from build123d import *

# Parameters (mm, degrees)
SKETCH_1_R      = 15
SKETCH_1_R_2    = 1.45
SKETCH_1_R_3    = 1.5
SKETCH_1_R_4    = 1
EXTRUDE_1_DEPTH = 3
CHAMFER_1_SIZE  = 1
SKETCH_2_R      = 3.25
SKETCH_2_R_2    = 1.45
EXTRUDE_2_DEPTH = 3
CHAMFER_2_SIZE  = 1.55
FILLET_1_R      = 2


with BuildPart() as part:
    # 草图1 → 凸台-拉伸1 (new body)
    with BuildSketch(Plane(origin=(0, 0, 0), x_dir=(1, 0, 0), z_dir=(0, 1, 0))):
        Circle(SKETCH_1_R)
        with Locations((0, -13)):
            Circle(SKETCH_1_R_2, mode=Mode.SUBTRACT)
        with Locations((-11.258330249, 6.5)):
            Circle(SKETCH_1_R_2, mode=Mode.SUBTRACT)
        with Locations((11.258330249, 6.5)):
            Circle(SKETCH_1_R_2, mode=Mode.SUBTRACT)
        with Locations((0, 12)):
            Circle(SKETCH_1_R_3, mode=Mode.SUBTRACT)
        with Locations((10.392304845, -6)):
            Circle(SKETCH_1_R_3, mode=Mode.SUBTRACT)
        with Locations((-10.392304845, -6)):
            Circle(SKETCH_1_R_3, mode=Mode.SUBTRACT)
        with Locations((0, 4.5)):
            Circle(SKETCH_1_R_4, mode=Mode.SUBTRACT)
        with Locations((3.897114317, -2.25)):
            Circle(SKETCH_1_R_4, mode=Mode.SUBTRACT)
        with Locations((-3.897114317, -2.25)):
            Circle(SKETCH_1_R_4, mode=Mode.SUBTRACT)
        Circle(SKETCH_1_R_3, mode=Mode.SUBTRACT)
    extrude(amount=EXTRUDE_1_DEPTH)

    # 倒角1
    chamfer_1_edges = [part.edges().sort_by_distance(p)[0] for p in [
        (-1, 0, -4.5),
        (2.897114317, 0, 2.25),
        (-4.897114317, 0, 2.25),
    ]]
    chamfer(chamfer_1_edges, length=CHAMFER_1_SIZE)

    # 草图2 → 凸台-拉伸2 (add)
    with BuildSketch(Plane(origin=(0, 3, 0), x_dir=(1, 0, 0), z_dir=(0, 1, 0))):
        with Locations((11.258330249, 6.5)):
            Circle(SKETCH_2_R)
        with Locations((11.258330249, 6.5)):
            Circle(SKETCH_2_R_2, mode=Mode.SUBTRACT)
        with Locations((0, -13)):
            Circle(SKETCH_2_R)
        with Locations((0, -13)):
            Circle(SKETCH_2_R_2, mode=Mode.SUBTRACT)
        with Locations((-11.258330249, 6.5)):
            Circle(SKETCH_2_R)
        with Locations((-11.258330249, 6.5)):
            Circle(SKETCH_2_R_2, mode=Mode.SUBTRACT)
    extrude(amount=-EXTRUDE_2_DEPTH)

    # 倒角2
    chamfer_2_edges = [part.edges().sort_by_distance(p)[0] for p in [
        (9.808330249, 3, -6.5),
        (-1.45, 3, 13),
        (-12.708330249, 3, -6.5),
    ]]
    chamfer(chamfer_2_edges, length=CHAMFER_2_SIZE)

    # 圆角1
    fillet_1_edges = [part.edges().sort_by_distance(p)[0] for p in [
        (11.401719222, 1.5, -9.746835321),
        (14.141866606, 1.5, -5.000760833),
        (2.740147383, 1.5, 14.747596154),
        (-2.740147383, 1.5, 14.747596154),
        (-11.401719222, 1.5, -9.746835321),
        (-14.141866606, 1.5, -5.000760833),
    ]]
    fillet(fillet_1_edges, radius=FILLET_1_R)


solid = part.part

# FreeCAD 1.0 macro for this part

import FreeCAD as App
import Part
import Sketcher

V = App.Vector
Q = App.Units.Quantity


def edges_at(feature, points):
    """Names of the edges that pass closest to the given points."""
    edges = feature.Shape.Edges
    near = lambda p: min(range(len(edges)), key=lambda i: edges[i].distToShape(Part.Vertex(*p))[0])
    return sorted({f"Edge{near(p) + 1}" for p in points})

doc = App.newDocument("Part")
body = doc.addObject("PartDesign::Body", "Body")

# Sketch on XZ plane
sketch1 = body.newObject("Sketcher::SketchObject", "Sketch")
sketch1.AttachmentSupport = (doc.getObject("XZ_Plane"), [""])
sketch1.MapMode = "FlatFace"
sketch1.addGeometry([
    Part.Circle(V(0, 0, 0), V(0, 0, 1), 15),  # 0
    Part.Circle(V(-10.4, 6, 0), V(0, 0, 1), 1.5),  # 1
    Part.Circle(V(-3.9, 2.2, 0), V(0, 0, 1), 1),  # 2
    Part.Circle(V(0, 13, 0), V(0, 0, 1), 1.4),  # 3
    Part.Circle(V(3.9, 2.2, 0), V(0, 0, 1), 1),  # 4
    Part.Circle(V(10.4, 6, 0), V(0, 0, 1), 1.5),  # 5
    Part.Circle(V(-11.3, -6.5, 0), V(0, 0, 1), 1.4),  # 6
    Part.Circle(V(0, 0, 0), V(0, 0, 1), 1.5),  # 7
    Part.Circle(V(0, -4.5, 0), V(0, 0, 1), 1),  # 8
    Part.Circle(V(11.3, -6.5, 0), V(0, 0, 1), 1.4),  # 9
    Part.Circle(V(0, -12, 0), V(0, 0, 1), 1.5),  # 10
], False)
sketch1.addConstraint([
    Sketcher.Constraint("Coincident", 0, 3, -1, 1),
    Sketcher.Constraint("Coincident", 7, 3, -1, 1),
    Sketcher.Constraint("Equal", 2, 4),
    Sketcher.Constraint("Equal", 1, 5),
    Sketcher.Constraint("Equal", 3, 6),
    Sketcher.Constraint("Equal", 5, 7),
    Sketcher.Constraint("Equal", 4, 8),
    Sketcher.Constraint("Equal", 6, 9),
    Sketcher.Constraint("Equal", 7, 10),
    Sketcher.Constraint("Symmetric", 2, 3, 4, 3, -2),
    Sketcher.Constraint("Symmetric", 1, 3, 5, 3, -2),
    Sketcher.Constraint("Symmetric", 6, 3, 9, 3, -2),
    Sketcher.Constraint("PointOnObject", 3, 3, -2),
    Sketcher.Constraint("PointOnObject", 8, 3, -2),
    Sketcher.Constraint("PointOnObject", 10, 3, -2),
    Sketcher.Constraint("Diameter", 0, Q("30 mm")),
    Sketcher.Constraint("Diameter", 1, Q("3 mm")),
    Sketcher.Constraint("Diameter", 2, Q("2 mm")),
    Sketcher.Constraint("Diameter", 3, Q("2.9 mm")),
    Sketcher.Constraint("DistanceY", -1, 1, 1, 3, Q("6 mm")),
    Sketcher.Constraint("DistanceY", -1, 1, 3, 3, Q("13 mm")),
    Sketcher.Constraint("DistanceY", 10, 3, -1, 1, Q("12 mm")),
    Sketcher.Constraint("DistanceY", 6, 3, 8, 3, Q("2 mm")),
    Sketcher.Constraint("DistanceY", 6, 3, -1, 1, Q("6.5 mm")),
    Sketcher.Constraint("DistanceY", -1, 1, 2, 3, Q("2.25 mm")),
    Sketcher.Constraint("DistanceX", 6, 3, -1, 1, Q("11.25833 mm")),
    Sketcher.Constraint("DistanceX", 1, 3, 2, 3, Q("6.495191 mm")),
    Sketcher.Constraint("DistanceX", 2, 3, 4, 3, Q("7.794229 mm")),
])
pad1 = body.newObject("PartDesign::Pad", "Pad")
pad1.Profile = sketch1
pad1.Length = 3
pad1.Reversed = True
doc.recompute()

chamfer = body.newObject("PartDesign::Chamfer", "Chamfer")
chamfer.Base = (pad1, edges_at(pad1, [(-1, 0, -4.5), (2.897, 0, 2.25), (-4.897, 0, 2.25)]))
chamfer.Size = 1

# Sketch on XZ plane
sketch2 = body.newObject("Sketcher::SketchObject", "Sketch001")
sketch2.AttachmentSupport = (doc.getObject("XZ_Plane"), [""])
sketch2.MapMode = "FlatFace"
sketch2.AttachmentOffset = App.Placement(V(0, 0, -3), App.Rotation())
sketch2.addGeometry([
    Part.Circle(V(11.3, -6.5, 0), V(0, 0, 1), 3.2),  # 0
    Part.Circle(V(11.3, -6.5, 0), V(0, 0, 1), 1.4),  # 1
    Part.Circle(V(0, 13, 0), V(0, 0, 1), 3.2),  # 2
    Part.Circle(V(0, 13, 0), V(0, 0, 1), 1.4),  # 3
    Part.Circle(V(-11.3, -6.5, 0), V(0, 0, 1), 3.2),  # 4
    Part.Circle(V(-11.3, -6.5, 0), V(0, 0, 1), 1.4),  # 5
], False)
sketch2.addConstraint([
    Sketcher.Constraint("Coincident", 1, 3, 0, 3),
    Sketcher.Constraint("Coincident", 3, 3, 2, 3),
    Sketcher.Constraint("Coincident", 5, 3, 4, 3),
    Sketcher.Constraint("Equal", 0, 2),
    Sketcher.Constraint("Equal", 1, 3),
    Sketcher.Constraint("Equal", 2, 4),
    Sketcher.Constraint("Equal", 3, 5),
    Sketcher.Constraint("Symmetric", 0, 3, 4, 3, -2),
    Sketcher.Constraint("PointOnObject", 2, 3, -2),
    Sketcher.Constraint("Diameter", 0, Q("6.5 mm")),
    Sketcher.Constraint("Diameter", 1, Q("2.9 mm")),
    Sketcher.Constraint("DistanceY", -1, 1, 2, 3, Q("13 mm")),
    Sketcher.Constraint("DistanceY", 0, 3, -1, 1, Q("6.5 mm")),
    Sketcher.Constraint("DistanceX", -1, 1, 0, 3, Q("11.25833 mm")),
])
pad2 = body.newObject("PartDesign::Pad", "Pad001")
pad2.Profile = sketch2
pad2.Length = 3
doc.recompute()

chamfer2 = body.newObject("PartDesign::Chamfer", "Chamfer001")
chamfer2.Base = (pad2, edges_at(pad2, [(9.808, 3, -6.5), (-1.45, 3, 13), (-12.708, 3, -6.5)]))
chamfer2.Size = 1.55
doc.recompute()

fillet = body.newObject("PartDesign::Fillet", "Fillet")
fillet.Base = (chamfer2, edges_at(chamfer2, [
    (11.402, 1.5, -9.747),
    (14.142, 1.5, -5.001),
    (2.74, 1.5, 14.748),
    (-2.74, 1.5, 14.748),
    (-11.402, 1.5, -9.747),
    (-14.142, 1.5, -5.001),
]))
fillet.Radius = 2

doc.recompute()
